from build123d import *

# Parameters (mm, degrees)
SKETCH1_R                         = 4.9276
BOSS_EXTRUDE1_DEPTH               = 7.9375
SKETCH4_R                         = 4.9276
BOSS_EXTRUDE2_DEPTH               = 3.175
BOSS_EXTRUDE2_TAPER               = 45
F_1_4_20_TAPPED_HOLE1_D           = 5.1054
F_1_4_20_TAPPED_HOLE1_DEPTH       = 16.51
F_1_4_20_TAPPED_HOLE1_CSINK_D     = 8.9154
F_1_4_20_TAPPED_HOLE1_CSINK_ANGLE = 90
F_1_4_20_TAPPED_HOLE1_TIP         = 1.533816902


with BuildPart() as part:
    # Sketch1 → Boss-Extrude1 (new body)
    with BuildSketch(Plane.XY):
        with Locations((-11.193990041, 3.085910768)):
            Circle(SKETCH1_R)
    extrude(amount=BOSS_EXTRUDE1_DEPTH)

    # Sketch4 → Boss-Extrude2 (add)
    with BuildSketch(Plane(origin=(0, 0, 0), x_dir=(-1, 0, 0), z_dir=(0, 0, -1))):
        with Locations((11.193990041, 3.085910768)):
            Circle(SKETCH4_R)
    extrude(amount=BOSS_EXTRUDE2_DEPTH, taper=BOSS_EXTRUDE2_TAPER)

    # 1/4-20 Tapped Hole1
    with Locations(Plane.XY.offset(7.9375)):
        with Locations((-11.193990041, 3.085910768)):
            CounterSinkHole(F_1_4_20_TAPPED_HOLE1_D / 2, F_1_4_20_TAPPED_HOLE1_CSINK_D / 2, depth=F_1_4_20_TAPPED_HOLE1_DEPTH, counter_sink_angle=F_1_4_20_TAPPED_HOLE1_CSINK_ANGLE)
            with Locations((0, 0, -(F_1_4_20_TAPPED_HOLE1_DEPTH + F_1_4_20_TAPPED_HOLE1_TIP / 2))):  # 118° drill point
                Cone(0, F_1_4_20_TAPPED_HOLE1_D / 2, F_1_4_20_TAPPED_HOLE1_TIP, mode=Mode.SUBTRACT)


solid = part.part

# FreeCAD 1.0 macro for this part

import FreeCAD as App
import Part
import Sketcher

V = App.Vector
Q = App.Units.Quantity

doc = App.newDocument("Part")
body = doc.addObject("PartDesign::Body", "Body")

# Sketch on XY plane
sketch1 = body.newObject("Sketcher::SketchObject", "Sketch")
sketch1.AttachmentSupport = (doc.getObject("XY_Plane"), [""])
sketch1.MapMode = "FlatFace"
sketch1.addGeometry(Part.Circle(V(-11.2, 3.1, 0), V(0, 0, 1), 4.9), False)
sketch1.addConstraint([
    Sketcher.Constraint("Diameter", 0, Q("0.388 in")),
    Sketcher.Constraint("DistanceX", 0, 3, -1, 1, Q("11.19399 mm")),
    Sketcher.Constraint("DistanceY", -1, 1, 0, 3, Q("3.085911 mm")),
])
pad1 = body.newObject("PartDesign::Pad", "Pad")
pad1.Profile = sketch1
pad1.Length = Q("0.3125 in")

# Sketch on XY plane
sketch2 = body.newObject("Sketcher::SketchObject", "Sketch001")
sketch2.AttachmentSupport = (doc.getObject("XY_Plane"), [""])
sketch2.MapMode = "FlatFace"
sketch2.addGeometry(Part.Circle(V(-11.2, 3.1, 0), V(0, 0, 1), 4.9), False)
sketch2.addConstraint([
    Sketcher.Constraint("Diameter", 0, Q("0.388 in")),
    Sketcher.Constraint("DistanceX", 0, 3, -1, 1, Q("11.19399 mm")),
    Sketcher.Constraint("DistanceY", -1, 1, 0, 3, Q("3.085911 mm")),
])
pad2 = body.newObject("PartDesign::Pad", "Pad001")
pad2.Profile = sketch2
pad2.Length = Q("0.125 in")
pad2.Reversed = True
pad2.TaperAngle = -45

# Sketch on XY plane
sketch3 = body.newObject("Sketcher::SketchObject", "Sketch002")
sketch3.AttachmentSupport = (doc.getObject("XY_Plane"), [""])
sketch3.MapMode = "FlatFace"
sketch3.AttachmentOffset = App.Placement(V(0, 0, 0.3125 * 25.4), App.Rotation())
sketch3.addGeometry(Part.Circle(V(-11.2, 3.1, 0), V(0, 0, 1), 2.6), False)
sketch3.addConstraint([
    Sketcher.Constraint("Diameter", 0, Q("0.201 in")),
    Sketcher.Constraint("DistanceX", 0, 3, -1, 1, Q("11.19399 mm")),
    Sketcher.Constraint("DistanceY", -1, 1, 0, 3, Q("3.085911 mm")),
])
doc.recompute()
hole = body.newObject("PartDesign::Hole", "Hole")
hole.Profile = sketch3
hole.ThreadType = "None"
hole.Diameter = Q("0.201 in")
hole.DepthType = "Dimension"
hole.Depth = Q("0.65 in")
hole.DrillPoint = "Angled"
hole.DrillPointAngle = 118
hole.HoleCutType = "Countersink"
hole.HoleCutDiameter = Q("0.351 in")
hole.HoleCutCountersinkAngle = 90

doc.recompute()
